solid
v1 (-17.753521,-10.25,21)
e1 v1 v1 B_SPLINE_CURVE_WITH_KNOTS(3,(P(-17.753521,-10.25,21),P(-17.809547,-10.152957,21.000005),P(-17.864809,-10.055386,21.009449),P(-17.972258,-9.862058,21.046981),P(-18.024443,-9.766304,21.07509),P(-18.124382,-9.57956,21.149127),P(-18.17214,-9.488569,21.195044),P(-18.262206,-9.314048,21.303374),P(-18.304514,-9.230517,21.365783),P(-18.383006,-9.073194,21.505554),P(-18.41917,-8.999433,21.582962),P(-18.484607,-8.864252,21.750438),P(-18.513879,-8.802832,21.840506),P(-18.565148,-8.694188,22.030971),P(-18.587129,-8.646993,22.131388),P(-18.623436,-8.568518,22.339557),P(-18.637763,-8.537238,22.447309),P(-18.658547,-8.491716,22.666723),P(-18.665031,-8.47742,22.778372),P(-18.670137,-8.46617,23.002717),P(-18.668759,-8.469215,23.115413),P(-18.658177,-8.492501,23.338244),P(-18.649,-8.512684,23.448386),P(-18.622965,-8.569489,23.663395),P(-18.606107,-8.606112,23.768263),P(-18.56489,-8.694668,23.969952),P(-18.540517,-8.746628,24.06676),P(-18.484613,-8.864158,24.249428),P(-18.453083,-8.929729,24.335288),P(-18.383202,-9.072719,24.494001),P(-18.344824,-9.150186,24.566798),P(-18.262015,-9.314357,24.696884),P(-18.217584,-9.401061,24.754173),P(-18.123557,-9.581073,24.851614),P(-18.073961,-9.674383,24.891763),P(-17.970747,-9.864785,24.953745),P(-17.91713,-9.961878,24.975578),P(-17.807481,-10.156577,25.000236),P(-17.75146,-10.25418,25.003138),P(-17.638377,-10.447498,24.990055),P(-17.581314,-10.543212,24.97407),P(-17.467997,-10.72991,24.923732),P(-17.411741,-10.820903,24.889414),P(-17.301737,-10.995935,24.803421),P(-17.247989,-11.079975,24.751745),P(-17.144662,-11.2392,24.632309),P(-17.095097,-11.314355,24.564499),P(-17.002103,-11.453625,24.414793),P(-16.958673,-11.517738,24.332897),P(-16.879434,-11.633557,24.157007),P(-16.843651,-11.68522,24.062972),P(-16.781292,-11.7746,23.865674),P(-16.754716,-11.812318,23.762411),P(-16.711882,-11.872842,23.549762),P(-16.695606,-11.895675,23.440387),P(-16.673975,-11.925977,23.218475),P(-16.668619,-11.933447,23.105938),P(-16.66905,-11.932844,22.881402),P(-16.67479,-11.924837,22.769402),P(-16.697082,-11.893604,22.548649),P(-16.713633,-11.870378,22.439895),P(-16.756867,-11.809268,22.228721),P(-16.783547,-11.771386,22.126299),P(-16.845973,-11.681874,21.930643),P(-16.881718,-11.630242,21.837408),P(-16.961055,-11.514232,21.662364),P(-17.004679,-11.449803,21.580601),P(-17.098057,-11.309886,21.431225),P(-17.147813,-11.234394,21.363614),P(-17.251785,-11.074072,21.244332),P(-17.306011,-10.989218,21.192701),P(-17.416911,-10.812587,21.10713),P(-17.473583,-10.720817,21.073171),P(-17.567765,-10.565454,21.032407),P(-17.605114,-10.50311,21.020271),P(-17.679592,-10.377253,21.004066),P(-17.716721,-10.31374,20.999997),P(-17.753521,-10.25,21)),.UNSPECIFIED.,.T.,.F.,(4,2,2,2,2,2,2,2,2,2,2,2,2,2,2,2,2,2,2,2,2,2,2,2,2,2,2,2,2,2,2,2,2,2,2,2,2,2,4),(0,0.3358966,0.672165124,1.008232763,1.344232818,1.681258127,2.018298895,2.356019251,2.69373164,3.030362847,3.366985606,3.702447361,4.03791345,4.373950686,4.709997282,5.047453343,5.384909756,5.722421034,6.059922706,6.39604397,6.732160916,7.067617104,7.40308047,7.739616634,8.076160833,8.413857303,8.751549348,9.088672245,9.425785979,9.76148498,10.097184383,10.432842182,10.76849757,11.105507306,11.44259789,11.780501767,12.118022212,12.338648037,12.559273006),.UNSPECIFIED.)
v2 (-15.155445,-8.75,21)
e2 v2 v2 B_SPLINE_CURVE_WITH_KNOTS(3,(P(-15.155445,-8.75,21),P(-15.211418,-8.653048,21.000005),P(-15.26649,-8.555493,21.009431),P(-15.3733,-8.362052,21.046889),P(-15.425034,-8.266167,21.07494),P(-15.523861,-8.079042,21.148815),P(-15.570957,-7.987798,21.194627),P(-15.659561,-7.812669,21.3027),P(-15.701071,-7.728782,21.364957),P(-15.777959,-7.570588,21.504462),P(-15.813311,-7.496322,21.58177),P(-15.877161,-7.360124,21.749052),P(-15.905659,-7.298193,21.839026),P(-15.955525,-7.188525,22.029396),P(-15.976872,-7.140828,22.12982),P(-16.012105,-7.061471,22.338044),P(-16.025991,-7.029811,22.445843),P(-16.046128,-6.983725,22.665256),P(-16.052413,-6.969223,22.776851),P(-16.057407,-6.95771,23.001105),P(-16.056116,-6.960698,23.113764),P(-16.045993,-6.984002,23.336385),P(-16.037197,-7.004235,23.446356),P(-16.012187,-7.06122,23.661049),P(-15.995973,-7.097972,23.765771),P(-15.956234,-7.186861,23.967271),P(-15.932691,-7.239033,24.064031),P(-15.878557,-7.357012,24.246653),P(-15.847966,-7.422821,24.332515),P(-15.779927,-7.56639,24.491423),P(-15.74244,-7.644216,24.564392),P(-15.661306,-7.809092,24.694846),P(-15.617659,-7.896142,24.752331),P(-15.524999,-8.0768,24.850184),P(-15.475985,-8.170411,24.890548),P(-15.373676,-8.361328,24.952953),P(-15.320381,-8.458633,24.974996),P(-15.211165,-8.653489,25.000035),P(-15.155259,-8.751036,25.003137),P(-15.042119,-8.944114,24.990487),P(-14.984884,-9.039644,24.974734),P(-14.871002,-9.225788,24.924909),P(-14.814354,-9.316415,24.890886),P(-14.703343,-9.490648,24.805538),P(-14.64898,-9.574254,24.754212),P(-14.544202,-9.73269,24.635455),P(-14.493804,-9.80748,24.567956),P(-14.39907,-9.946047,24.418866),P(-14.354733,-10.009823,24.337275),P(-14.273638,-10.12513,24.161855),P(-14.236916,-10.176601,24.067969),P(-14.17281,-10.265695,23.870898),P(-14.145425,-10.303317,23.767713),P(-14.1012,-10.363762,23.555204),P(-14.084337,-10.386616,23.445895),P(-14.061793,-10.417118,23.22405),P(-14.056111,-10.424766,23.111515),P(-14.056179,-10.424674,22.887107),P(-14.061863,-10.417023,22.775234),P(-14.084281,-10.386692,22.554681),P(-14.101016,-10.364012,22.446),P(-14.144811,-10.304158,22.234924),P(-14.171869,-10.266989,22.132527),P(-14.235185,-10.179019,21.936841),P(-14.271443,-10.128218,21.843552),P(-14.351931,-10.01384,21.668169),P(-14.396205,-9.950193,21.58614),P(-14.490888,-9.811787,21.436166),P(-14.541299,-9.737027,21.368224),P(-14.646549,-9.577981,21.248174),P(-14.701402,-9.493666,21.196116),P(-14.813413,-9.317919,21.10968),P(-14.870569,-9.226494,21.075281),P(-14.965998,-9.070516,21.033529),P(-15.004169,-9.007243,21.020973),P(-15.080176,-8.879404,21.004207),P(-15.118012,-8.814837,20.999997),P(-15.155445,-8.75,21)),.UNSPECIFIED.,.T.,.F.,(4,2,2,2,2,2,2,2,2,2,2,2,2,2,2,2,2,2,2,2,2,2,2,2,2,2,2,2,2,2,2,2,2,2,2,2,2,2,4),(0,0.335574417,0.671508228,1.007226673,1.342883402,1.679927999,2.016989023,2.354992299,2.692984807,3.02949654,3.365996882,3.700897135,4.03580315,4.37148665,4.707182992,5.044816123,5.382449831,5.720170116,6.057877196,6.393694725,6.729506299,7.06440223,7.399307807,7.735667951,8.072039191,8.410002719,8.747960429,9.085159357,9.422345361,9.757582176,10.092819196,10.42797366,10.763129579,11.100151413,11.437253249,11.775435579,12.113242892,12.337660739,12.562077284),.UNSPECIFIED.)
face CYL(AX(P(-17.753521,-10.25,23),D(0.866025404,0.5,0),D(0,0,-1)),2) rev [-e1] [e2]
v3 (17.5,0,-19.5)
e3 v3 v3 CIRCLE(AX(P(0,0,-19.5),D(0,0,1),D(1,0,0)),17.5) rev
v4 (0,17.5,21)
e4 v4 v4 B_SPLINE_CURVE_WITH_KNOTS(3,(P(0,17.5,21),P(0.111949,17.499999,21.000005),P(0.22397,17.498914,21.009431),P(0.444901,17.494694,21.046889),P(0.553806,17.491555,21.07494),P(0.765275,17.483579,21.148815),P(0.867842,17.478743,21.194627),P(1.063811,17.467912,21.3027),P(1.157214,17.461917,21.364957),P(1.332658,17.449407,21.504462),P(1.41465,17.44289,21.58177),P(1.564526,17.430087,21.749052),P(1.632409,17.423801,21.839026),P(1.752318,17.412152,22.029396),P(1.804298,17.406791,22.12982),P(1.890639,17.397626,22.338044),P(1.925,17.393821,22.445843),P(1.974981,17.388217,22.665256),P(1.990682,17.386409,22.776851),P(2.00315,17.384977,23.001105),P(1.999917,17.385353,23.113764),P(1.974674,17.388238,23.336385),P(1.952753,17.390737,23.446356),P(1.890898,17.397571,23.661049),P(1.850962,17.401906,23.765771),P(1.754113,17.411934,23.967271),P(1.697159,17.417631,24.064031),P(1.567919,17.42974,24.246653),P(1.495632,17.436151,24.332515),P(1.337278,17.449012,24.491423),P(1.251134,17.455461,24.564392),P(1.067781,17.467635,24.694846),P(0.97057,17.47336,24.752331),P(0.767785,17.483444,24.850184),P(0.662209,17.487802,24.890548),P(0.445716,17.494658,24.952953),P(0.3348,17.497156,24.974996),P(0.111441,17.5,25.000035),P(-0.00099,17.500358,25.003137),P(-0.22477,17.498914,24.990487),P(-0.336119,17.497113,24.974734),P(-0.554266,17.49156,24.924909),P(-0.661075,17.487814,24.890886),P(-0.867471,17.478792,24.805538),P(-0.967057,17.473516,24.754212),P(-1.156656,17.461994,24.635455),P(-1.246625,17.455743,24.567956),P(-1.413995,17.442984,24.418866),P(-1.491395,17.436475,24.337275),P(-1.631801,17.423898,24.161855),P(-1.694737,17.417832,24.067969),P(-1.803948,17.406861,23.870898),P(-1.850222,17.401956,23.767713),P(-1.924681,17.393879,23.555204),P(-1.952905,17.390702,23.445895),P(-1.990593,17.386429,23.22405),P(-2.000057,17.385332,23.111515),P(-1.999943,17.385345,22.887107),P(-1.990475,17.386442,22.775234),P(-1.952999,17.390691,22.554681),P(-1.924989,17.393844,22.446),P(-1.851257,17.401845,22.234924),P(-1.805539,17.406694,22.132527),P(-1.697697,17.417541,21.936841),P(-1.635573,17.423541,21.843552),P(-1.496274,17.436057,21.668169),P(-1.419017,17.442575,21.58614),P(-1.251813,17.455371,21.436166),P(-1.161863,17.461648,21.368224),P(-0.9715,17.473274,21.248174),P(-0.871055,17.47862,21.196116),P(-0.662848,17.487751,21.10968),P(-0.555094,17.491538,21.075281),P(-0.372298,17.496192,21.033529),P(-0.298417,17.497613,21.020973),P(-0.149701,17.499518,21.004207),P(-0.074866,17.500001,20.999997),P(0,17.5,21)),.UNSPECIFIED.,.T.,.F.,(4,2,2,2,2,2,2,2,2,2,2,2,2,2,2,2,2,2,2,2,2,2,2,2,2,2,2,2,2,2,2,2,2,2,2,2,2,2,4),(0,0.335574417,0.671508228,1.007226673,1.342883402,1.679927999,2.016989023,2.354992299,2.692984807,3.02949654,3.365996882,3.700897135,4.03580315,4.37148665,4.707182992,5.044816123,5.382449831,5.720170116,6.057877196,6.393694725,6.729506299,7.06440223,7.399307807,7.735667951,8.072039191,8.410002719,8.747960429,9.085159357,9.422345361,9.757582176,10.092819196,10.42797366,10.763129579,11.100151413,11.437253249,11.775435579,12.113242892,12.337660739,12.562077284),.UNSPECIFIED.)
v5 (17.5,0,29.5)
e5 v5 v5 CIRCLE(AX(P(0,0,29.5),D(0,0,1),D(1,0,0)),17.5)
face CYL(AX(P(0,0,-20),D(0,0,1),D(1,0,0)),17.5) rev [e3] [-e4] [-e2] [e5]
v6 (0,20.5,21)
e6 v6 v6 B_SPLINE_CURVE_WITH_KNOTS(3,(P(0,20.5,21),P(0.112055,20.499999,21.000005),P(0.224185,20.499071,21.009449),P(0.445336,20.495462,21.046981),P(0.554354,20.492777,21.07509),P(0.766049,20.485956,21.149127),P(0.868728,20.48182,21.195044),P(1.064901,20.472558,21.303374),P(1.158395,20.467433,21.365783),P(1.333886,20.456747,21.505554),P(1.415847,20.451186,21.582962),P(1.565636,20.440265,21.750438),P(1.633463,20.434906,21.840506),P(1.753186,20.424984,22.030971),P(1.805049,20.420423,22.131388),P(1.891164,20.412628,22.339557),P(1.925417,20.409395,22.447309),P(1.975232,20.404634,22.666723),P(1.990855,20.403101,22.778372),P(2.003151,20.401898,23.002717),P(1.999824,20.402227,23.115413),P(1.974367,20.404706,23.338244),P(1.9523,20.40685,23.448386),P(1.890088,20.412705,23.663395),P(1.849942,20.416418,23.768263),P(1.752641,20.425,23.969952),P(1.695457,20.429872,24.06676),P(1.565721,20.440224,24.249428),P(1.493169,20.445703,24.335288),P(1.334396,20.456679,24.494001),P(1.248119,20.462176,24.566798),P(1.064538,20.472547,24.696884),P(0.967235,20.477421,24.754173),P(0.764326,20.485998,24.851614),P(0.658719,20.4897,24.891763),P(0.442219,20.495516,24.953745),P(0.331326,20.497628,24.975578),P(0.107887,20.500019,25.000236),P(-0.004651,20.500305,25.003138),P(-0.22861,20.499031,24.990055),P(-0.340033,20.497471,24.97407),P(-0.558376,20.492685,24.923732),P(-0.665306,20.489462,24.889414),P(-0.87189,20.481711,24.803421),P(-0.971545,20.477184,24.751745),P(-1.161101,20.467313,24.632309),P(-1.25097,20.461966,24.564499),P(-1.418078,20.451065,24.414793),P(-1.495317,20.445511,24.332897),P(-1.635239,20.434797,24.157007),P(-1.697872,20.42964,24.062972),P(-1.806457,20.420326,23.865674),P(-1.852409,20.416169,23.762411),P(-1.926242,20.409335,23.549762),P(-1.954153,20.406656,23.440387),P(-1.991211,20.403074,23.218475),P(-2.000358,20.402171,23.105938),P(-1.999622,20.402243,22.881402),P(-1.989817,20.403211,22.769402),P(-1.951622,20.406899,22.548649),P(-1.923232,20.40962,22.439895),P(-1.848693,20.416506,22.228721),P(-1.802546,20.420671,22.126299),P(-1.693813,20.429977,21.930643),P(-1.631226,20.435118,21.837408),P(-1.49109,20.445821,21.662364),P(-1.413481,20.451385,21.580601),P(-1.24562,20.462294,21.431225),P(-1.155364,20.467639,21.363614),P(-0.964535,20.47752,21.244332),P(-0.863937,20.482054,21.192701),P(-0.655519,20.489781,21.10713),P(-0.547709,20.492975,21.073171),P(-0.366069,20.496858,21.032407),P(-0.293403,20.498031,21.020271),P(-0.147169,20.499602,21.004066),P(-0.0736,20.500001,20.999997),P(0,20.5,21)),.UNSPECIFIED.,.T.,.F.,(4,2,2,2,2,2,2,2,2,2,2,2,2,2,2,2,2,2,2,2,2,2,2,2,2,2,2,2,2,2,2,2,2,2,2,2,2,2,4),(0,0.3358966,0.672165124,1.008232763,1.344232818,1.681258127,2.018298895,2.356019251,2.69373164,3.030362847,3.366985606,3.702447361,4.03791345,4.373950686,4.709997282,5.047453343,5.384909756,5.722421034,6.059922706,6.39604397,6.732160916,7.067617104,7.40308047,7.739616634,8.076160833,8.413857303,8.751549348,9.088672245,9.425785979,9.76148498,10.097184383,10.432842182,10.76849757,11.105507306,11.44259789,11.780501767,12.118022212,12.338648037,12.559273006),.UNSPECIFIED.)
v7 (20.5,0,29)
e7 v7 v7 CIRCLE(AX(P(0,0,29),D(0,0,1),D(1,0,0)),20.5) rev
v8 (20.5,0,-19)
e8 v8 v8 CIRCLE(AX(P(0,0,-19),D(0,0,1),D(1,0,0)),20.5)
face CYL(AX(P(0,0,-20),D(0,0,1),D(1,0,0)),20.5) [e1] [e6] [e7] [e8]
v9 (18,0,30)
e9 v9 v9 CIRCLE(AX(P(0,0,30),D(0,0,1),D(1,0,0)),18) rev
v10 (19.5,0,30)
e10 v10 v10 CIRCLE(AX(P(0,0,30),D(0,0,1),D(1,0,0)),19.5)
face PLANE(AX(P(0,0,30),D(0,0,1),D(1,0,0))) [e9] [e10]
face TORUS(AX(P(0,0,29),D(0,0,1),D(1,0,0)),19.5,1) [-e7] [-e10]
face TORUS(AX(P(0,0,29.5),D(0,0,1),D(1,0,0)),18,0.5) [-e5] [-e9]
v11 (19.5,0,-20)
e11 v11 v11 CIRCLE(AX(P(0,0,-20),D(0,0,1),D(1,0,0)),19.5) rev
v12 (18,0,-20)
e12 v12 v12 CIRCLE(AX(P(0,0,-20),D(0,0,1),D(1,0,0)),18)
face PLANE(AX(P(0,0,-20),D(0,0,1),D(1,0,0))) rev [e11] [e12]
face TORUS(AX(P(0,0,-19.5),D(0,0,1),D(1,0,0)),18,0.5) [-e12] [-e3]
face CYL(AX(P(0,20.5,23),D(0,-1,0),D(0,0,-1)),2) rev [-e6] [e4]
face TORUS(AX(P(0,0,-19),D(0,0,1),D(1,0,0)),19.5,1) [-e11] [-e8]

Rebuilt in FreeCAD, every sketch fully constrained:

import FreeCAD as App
import Part
import Sketcher

V = App.Vector
Q = App.Units.Quantity


def edges_at(feature, points):
    """Names of the edges that pass closest to the given points."""
    edges = feature.Shape.Edges
    near = lambda p: min(range(len(edges)), key=lambda i: edges[i].distToShape(Part.Vertex(*p))[0])
    return sorted({f"Edge{near(p) + 1}" for p in points})

doc = App.newDocument("Part")
body = doc.addObject("PartDesign::Body", "Body")

# Sketch on XY plane
sketch1 = body.newObject("Sketcher::SketchObject", "Sketch")
sketch1.AttachmentSupport = (doc.getObject("XY_Plane"), [""])
sketch1.MapMode = "FlatFace"
sketch1.addGeometry([
    Part.Circle(V(0, 0, 0), V(0, 0, 1), 20),
    Part.Circle(V(0, 0, 0), V(0, 0, 1), 18),
], False)
sketch1.addConstraint([
    Sketcher.Constraint("Coincident", 0, 3, -1, 1),
    Sketcher.Constraint("Coincident", 1, 3, -1, 1),
    Sketcher.Constraint("Diameter", 0, Q("41 mm")),
    Sketcher.Constraint("Diameter", 1, Q("35 mm")),
])
pad1 = body.newObject("PartDesign::Pad", "Pad")
pad1.Profile = sketch1
pad1.Type = "TwoLengths"
pad1.Length = 30
pad1.Length2 = 20

# Sketch on XZ plane
sketch2 = body.newObject("Sketcher::SketchObject", "Sketch001")
sketch2.AttachmentSupport = (doc.getObject("XZ_Plane"), [""])
sketch2.MapMode = "FlatFace"
sketch2.addGeometry(Part.Circle(V(0, 23, 0), V(0, 0, 1), 2), False)
sketch2.addConstraint([
    Sketcher.Constraint("PointOnObject", 0, 3, -2),
    Sketcher.Constraint("Diameter", 0, Q("4 mm")),
    Sketcher.Constraint("DistanceY", -1, 1, 0, 3, Q("23 mm")),
])
pocket1 = body.newObject("PartDesign::Pocket", "Pocket")
pocket1.Profile = sketch2
pocket1.Type = "ThroughAll"
doc.recompute()

polarpattern = body.newObject("PartDesign::PolarPattern", "PolarPattern")
polarpattern.Originals = [pocket1]
polarpattern.Axis = (doc.getObject("Z_Axis"), [""])
polarpattern.Angle = 120
polarpattern.Occurrences = 2
body.Tip = polarpattern
doc.recompute()

fillet = body.newObject("PartDesign::Fillet", "Fillet")
fillet.Base = (polarpattern, edges_at(polarpattern, [(-20.5, 0, -20), (-20.5, 0, 30)]))
fillet.Radius = 1
doc.recompute()

fillet2 = body.newObject("PartDesign::Fillet", "Fillet001")
fillet2.Base = (fillet, edges_at(fillet, [(-17.5, 0, -20), (-17.5, 0, 30)]))
fillet2.Radius = 0.5

doc.recompute()
